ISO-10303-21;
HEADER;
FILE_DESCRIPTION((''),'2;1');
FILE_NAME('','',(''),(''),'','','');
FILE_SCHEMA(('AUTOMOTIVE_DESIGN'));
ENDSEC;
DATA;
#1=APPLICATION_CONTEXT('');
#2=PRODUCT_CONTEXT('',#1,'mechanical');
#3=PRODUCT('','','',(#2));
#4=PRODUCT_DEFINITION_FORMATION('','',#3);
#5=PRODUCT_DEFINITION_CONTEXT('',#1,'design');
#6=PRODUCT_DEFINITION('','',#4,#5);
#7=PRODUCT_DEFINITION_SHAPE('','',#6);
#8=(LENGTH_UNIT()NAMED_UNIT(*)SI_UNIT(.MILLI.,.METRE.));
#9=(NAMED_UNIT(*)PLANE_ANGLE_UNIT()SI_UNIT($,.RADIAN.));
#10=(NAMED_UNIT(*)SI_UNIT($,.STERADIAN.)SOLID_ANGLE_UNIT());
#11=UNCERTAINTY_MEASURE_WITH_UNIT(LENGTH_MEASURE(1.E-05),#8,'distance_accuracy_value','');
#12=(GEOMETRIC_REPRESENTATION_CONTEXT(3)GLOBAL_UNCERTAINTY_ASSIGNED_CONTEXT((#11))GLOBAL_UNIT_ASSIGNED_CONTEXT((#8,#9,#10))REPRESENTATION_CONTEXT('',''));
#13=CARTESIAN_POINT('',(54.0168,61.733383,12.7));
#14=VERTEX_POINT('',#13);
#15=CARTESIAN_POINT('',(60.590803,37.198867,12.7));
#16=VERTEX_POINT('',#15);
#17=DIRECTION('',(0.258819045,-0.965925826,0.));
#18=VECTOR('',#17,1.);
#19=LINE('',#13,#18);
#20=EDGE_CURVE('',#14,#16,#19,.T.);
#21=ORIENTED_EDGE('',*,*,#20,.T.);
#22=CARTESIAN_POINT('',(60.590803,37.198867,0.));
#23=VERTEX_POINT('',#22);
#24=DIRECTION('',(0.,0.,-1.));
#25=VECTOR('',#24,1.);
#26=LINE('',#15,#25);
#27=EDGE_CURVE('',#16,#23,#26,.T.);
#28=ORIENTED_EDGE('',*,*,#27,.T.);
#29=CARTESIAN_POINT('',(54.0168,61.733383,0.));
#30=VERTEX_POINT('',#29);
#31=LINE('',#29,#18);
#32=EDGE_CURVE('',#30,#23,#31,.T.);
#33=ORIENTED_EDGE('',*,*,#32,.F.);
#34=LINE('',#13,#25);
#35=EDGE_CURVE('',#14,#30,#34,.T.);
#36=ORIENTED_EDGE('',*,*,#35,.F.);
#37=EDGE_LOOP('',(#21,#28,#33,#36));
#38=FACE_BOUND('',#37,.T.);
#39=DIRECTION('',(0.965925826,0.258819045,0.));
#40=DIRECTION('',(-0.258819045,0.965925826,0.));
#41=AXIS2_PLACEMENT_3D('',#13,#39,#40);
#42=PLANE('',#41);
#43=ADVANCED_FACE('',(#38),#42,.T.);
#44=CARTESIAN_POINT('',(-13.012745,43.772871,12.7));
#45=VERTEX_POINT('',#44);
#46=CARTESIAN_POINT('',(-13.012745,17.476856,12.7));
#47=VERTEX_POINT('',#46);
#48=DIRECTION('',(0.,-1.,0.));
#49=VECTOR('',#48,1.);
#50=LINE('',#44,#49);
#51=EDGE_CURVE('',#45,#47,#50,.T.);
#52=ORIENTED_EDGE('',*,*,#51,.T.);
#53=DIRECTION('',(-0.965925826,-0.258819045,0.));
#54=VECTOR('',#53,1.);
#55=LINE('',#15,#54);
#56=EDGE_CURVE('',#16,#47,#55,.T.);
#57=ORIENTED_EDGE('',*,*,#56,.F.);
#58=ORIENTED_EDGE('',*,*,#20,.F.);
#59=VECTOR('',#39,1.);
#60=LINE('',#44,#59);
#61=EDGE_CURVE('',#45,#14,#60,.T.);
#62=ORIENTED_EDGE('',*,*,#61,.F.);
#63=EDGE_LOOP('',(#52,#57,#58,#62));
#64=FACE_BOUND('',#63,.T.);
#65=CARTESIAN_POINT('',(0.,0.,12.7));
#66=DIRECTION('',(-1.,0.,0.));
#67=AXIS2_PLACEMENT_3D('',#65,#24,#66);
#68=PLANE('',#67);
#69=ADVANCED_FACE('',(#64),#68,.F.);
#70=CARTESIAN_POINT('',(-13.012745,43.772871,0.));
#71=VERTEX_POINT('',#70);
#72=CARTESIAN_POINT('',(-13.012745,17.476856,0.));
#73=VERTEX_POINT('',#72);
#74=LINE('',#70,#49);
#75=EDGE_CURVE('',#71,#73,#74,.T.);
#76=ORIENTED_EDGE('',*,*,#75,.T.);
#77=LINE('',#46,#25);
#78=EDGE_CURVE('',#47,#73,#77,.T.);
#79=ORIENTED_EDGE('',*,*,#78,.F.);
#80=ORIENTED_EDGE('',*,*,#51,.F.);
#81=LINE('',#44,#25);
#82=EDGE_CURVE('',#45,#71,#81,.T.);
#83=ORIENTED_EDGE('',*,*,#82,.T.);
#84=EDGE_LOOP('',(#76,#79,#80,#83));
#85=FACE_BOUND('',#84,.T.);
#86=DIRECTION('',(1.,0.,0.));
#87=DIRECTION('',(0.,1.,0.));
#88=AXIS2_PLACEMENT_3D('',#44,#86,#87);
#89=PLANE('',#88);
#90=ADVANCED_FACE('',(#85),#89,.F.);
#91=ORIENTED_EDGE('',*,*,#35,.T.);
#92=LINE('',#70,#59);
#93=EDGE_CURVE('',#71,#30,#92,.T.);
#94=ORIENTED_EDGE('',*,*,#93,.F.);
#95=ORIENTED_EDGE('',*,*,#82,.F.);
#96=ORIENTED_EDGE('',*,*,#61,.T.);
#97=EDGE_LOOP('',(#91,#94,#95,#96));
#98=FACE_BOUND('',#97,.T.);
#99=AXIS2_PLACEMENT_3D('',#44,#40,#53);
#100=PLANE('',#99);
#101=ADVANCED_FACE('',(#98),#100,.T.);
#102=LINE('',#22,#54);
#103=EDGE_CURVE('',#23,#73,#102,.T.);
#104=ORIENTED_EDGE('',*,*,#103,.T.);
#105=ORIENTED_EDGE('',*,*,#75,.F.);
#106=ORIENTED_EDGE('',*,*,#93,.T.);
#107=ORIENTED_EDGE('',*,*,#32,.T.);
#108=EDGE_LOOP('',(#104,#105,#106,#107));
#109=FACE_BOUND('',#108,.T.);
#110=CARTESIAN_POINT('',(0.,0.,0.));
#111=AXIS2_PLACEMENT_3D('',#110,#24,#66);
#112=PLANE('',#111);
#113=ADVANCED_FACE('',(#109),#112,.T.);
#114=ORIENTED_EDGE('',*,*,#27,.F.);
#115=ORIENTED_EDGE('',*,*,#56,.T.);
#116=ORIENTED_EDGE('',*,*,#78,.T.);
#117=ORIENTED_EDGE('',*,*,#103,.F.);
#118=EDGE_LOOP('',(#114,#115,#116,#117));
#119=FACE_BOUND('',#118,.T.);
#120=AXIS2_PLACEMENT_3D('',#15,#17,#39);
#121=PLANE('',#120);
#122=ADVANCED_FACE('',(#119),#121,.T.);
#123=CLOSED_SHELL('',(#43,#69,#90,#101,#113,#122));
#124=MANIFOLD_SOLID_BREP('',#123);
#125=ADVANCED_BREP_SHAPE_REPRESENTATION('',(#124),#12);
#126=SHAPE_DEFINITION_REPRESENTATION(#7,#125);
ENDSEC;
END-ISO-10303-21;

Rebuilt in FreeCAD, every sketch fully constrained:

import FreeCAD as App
import Part
import Sketcher

V = App.Vector
Q = App.Units.Quantity


def add_polygon(sketch, points):
    """Adds a closed chain of lines whose ends are joined by coincident constraints."""
    first, n = sketch.GeometryCount, len(points)
    for a, b in zip(points, points[1:] + points[:1]):
        sketch.addGeometry(Part.LineSegment(App.Vector(*a, 0), App.Vector(*b, 0)), False)
    for i in range(n):
        sketch.addConstraint(Sketcher.Constraint("Coincident", first + i, 2, first + (i + 1) % n, 1))

doc = App.newDocument("Part")
body = doc.addObject("PartDesign::Body", "Body")

sketch1 = body.newObject("Sketcher::SketchObject", "Sketch")
sketch1.AttachmentSupport = (doc.getObject("XY_Plane"), [""])
sketch1.MapMode = "FlatFace"
add_polygon(sketch1, [(-13, 44), (-13, 17), (61, 37), (54, 62)])
sketch1.addConstraint(Sketcher.Constraint("Vertical", 0))
sketch1.addConstraint(Sketcher.Constraint("Perpendicular", 1, 2))
sketch1.addConstraint(Sketcher.Constraint("Perpendicular", 2, 3))
sketch1.addConstraint(Sketcher.Constraint("Distance", 1, Q("3 in")))
sketch1.addConstraint(Sketcher.Constraint("Distance", 2, Q("1 in")))
sketch1.addConstraint(Sketcher.Constraint("Angle", 1, Q("15 deg")))
sketch1.addConstraint(Sketcher.Constraint("DistanceX", -1, 1, 2, 2, Q("54.0168 mm")))
sketch1.addConstraint(Sketcher.Constraint("DistanceY", -1, 1, 3, 2, Q("43.772871 mm")))
pad1 = body.newObject("PartDesign::Pad", "Pad")
pad1.Profile = sketch1
pad1.Length = Q("0.5 in")

doc.recompute()
